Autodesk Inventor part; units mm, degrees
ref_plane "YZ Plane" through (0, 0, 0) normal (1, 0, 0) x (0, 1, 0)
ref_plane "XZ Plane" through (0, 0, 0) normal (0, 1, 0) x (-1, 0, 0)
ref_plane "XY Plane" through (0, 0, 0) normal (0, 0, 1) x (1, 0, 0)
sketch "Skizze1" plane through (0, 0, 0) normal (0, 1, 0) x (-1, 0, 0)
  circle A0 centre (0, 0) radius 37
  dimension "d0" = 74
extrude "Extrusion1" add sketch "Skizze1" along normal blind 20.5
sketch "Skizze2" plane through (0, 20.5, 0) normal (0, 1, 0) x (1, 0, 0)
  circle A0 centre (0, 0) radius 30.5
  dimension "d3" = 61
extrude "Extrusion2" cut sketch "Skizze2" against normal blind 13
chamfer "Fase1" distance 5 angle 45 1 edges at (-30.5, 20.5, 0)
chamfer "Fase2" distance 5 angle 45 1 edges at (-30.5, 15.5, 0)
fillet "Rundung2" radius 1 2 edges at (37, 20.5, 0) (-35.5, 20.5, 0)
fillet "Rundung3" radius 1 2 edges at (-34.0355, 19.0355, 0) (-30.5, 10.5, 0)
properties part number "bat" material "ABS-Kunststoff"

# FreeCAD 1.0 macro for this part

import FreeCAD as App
import Part
import Sketcher
from FreeCAD import Vector


def edges_at(feature, points):
    """Names of the edges that pass closest to the given points."""
    edges = feature.Shape.Edges
    near = lambda p: min(range(len(edges)), key=lambda i: edges[i].distToShape(Part.Vertex(*p))[0])
    return sorted({f"Edge{near(p) + 1}" for p in points})

doc = App.newDocument("Part")
body = doc.addObject("PartDesign::Body", "Body")

# Sketch on XZ plane
sketch1 = body.newObject("Sketcher::SketchObject", "Sketch")
sketch1.AttachmentSupport = (doc.getObject("XZ_Plane"), [""])
sketch1.MapMode = "FlatFace"
sketch1.addGeometry(Part.Circle(Vector(0, 0, 0), Vector(0, 0, 1), 37), False)
sketch1.addConstraint(Sketcher.Constraint("Coincident", 0, 3, -1, 1))
sketch1.addConstraint(Sketcher.Constraint("Diameter", 0, 74.0))
pad1 = body.newObject("PartDesign::Pad", "Pad")
pad1.Profile = sketch1
pad1.Length = 20.5
pad1.Reversed = True

# Sketch on XZ plane
sketch2 = body.newObject("Sketcher::SketchObject", "Sketch001")
sketch2.AttachmentSupport = (doc.getObject("XZ_Plane"), [""])
sketch2.MapMode = "FlatFace"
sketch2.AttachmentOffset = App.Placement(Vector(0, 0, -20.5), App.Rotation())
sketch2.addGeometry(Part.Circle(Vector(0, 0, 0), Vector(0, 0, 1), 30), False)
sketch2.addConstraint(Sketcher.Constraint("Coincident", 0, 3, -1, 1))
sketch2.addConstraint(Sketcher.Constraint("Diameter", 0, 61.0))
pocket1 = body.newObject("PartDesign::Pocket", "Pocket")
pocket1.Profile = sketch2
pocket1.Length = 13
pocket1.Reversed = True
doc.recompute()

chamfer = body.newObject("PartDesign::Chamfer", "Chamfer")
chamfer.Base = (pocket1, edges_at(pocket1, [(-30.5, 20.5, 0)]))
chamfer.Size = 5
doc.recompute()

chamfer2 = body.newObject("PartDesign::Chamfer", "Chamfer001")
chamfer2.Base = (chamfer, edges_at(chamfer, [(-30.5, 15.5, 0)]))
chamfer2.Size = 5
doc.recompute()

fillet = body.newObject("PartDesign::Fillet", "Fillet")
fillet.Base = (chamfer2, edges_at(chamfer2, [(37, 20.5, 0), (-35.5, 20.5, 0)]))
fillet.Radius = 1
doc.recompute()

fillet2 = body.newObject("PartDesign::Fillet", "Fillet001")
fillet2.Base = (fillet, edges_at(fillet, [(-34.035, 19.035, 0), (-30.5, 10.5, 0)]))
fillet2.Radius = 1

doc.recompute()
